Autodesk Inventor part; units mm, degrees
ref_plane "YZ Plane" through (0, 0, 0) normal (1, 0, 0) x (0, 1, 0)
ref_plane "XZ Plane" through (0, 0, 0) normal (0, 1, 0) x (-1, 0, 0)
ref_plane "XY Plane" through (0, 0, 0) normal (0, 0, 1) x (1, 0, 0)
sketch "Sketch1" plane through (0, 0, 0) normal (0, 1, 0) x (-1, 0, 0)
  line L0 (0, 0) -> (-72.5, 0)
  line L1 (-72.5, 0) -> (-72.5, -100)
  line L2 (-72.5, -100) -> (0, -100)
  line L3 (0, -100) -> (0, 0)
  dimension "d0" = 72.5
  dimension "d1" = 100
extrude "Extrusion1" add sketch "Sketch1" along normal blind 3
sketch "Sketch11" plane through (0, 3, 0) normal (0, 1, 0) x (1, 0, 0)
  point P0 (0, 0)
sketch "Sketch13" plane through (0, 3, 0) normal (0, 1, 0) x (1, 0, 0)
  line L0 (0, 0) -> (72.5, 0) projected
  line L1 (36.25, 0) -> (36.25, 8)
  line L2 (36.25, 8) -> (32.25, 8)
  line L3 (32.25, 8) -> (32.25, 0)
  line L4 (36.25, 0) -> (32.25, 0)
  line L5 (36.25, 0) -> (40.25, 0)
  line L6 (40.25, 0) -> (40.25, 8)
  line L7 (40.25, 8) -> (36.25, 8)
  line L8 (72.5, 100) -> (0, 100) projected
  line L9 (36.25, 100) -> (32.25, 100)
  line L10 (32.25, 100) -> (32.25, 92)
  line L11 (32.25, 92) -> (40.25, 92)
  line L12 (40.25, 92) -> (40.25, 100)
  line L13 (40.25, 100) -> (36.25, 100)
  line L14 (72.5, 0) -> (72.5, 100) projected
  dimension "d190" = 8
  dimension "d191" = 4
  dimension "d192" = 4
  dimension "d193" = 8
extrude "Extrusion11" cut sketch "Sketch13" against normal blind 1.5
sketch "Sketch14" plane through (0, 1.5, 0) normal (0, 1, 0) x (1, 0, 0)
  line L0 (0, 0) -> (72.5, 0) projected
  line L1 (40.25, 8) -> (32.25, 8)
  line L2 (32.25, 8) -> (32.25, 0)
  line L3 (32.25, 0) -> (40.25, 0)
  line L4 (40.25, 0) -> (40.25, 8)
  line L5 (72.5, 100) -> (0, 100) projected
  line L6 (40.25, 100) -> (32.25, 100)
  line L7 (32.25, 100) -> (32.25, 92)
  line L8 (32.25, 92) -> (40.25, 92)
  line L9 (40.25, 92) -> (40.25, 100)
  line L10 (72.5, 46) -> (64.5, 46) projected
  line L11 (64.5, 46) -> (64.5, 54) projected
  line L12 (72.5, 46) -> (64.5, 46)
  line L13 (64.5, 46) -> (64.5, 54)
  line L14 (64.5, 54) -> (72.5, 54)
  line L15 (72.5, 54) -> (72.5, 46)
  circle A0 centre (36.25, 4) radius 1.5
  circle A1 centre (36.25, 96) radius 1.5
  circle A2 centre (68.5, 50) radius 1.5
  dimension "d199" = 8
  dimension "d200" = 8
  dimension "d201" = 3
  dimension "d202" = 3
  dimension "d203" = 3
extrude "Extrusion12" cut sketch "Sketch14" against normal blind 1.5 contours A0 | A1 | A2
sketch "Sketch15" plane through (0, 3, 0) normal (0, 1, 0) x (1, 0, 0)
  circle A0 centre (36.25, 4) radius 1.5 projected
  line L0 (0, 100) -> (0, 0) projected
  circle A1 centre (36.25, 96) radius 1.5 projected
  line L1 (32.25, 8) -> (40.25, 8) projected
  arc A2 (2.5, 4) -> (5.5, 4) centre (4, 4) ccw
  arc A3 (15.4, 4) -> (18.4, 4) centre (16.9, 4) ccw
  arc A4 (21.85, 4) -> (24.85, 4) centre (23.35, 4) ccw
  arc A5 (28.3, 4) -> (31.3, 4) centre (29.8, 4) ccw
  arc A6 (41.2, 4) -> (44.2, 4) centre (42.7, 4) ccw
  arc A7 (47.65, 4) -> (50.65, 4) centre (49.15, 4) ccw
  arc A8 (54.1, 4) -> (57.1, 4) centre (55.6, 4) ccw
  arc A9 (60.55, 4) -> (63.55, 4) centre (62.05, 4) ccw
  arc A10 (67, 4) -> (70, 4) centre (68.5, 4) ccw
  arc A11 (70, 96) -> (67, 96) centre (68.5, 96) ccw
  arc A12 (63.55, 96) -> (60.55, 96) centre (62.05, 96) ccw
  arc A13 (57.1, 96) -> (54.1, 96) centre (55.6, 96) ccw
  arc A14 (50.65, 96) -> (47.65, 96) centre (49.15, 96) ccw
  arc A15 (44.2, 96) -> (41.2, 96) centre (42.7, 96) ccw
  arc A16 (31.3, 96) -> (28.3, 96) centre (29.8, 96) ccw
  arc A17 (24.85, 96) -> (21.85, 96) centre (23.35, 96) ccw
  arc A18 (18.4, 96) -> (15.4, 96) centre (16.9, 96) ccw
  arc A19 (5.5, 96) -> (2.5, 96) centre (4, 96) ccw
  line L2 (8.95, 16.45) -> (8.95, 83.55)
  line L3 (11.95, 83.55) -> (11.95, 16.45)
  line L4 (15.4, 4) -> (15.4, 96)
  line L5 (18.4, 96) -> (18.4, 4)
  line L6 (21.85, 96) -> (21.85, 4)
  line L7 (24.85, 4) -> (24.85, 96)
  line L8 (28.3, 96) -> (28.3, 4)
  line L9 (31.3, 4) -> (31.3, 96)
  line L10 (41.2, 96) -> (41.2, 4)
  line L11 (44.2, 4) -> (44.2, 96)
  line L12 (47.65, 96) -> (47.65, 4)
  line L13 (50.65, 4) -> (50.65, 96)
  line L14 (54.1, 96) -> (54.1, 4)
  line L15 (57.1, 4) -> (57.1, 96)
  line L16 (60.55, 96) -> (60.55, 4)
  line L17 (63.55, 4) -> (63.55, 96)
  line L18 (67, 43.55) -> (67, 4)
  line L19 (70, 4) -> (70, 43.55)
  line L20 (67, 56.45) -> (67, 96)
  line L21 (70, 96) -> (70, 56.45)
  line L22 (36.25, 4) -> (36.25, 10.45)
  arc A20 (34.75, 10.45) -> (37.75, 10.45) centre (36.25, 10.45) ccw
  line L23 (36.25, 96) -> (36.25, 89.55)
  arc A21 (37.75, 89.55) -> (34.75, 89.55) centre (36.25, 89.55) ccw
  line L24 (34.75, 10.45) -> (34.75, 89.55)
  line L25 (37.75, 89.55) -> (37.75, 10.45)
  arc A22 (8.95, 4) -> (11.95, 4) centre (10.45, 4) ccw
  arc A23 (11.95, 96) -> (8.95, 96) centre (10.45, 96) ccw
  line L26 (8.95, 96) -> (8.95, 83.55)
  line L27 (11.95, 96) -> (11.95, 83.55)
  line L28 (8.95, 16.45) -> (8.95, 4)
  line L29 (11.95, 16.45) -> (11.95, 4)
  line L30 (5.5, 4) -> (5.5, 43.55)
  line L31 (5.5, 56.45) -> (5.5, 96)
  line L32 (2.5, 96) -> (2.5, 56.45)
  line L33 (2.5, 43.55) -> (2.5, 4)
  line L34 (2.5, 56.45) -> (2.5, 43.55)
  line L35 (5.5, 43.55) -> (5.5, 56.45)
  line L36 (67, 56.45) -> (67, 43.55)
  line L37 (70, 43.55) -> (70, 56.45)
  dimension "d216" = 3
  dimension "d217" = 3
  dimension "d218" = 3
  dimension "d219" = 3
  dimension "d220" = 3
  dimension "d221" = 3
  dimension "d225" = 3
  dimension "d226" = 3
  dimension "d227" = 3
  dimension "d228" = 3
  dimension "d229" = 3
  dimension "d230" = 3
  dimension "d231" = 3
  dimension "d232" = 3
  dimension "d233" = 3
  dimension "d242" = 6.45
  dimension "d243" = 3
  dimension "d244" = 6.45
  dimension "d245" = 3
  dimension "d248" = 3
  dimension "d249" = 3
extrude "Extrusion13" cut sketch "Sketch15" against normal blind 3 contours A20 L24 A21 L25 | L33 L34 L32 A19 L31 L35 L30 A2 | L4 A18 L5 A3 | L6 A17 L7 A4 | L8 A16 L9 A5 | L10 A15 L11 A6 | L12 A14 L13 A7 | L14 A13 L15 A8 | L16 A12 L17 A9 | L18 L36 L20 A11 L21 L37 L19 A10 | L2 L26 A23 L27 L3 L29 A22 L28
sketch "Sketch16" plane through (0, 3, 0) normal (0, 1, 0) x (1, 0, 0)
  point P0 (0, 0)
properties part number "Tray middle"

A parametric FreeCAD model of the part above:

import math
import FreeCAD as App
import Part
import Sketcher
from FreeCAD import Vector
Q = App.Units.Quantity


def add_polygon(sketch, points):
    """Adds a closed chain of lines whose ends are joined by coincident constraints."""
    first, n = sketch.GeometryCount, len(points)
    for a, b in zip(points, points[1:] + points[:1]):
        sketch.addGeometry(Part.LineSegment(App.Vector(*a, 0), App.Vector(*b, 0)), False)
    for i in range(n):
        sketch.addConstraint(Sketcher.Constraint("Coincident", first + i, 2, first + (i + 1) % n, 1))

doc = App.newDocument("Part")
body = doc.addObject("PartDesign::Body", "Body")

# Sketch on XZ plane
sketch1 = body.newObject("Sketcher::SketchObject", "Sketch")
sketch1.AttachmentSupport = (doc.getObject("XZ_Plane"), [""])
sketch1.MapMode = "FlatFace"
add_polygon(sketch1, [(0, -100), (0, 0), (72, 0), (72, -100)])  # lines 0-3
sketch1.addConstraint([
    Sketcher.Constraint("Vertical", 0),
    Sketcher.Constraint("Horizontal", 1),
    Sketcher.Constraint("Vertical", 2),
    Sketcher.Constraint("Horizontal", 3),
    Sketcher.Constraint("Coincident", 0, 2, -1, 1),
    Sketcher.Constraint("DistanceY", 0, 1, 0, 2, Q("100 mm")),
    Sketcher.Constraint("DistanceX", 1, 1, 1, 2, Q("72.5 mm")),
])
pad1 = body.newObject("PartDesign::Pad", "Pad")
pad1.Profile = sketch1
pad1.Length = 3
pad1.Reversed = True

# Sketch on XZ plane
sketch2 = body.newObject("Sketcher::SketchObject", "Sketch001")
sketch2.AttachmentSupport = (doc.getObject("XZ_Plane"), [""])
sketch2.MapMode = "FlatFace"
sketch2.AttachmentOffset = App.Placement(Vector(0, 0, -3), App.Rotation())
add_polygon(sketch2, [(32, -8), (32, 0), (40, 0), (40, -8)])  # lines 0-3
add_polygon(sketch2, [(40, -92), (40, -100), (32, -100), (32, -92)])  # lines 4-7
sketch2.addConstraint([
    Sketcher.Constraint("Vertical", 0),
    Sketcher.Constraint("Horizontal", 1),
    Sketcher.Constraint("Vertical", 2),
    Sketcher.Constraint("Horizontal", 3),
    Sketcher.Constraint("Vertical", 4),
    Sketcher.Constraint("Horizontal", 5),
    Sketcher.Constraint("Vertical", 6),
    Sketcher.Constraint("Horizontal", 7),
    Sketcher.Constraint("PointOnObject", 0, 2, -1),
    Sketcher.Constraint("Vertical", 2, 2, 4, 2),
    Sketcher.Constraint("Vertical", 3, 2, 5, 2),
    Sketcher.Constraint("Equal", 7, 0),
    Sketcher.Constraint("Equal", 2, 4),
    Sketcher.Constraint("DistanceX", 1, 1, 1, 2, Q("8 mm")),
    Sketcher.Constraint("DistanceY", 4, 2, -1, 1, Q("100 mm")),
    Sketcher.Constraint("DistanceX", -1, 1, 0, 2, Q("32.25 mm")),
])
pocket1 = body.newObject("PartDesign::Pocket", "Pocket")
pocket1.Profile = sketch2
pocket1.Length = 1.5
pocket1.Reversed = True

# Sketch on XZ plane
sketch3 = body.newObject("Sketcher::SketchObject", "Sketch002")
sketch3.AttachmentSupport = (doc.getObject("XZ_Plane"), [""])
sketch3.MapMode = "FlatFace"
sketch3.AttachmentOffset = App.Placement(Vector(0, 0, -1.5), App.Rotation())
sketch3.addGeometry([
    Part.Circle(Vector(36.2, -4, 0), Vector(0, 0, 1), 1.5),
    Part.Circle(Vector(36.2, -96, 0), Vector(0, 0, 1), 1.5),
    Part.Circle(Vector(68.5, -50, 0), Vector(0, 0, 1), 1.5),
], False)
sketch3.addConstraint([
    Sketcher.Constraint("Equal", 0, 1),
    Sketcher.Constraint("Equal", 1, 2),
    Sketcher.Constraint("Vertical", 0, 3, 1, 3),
    Sketcher.Constraint("Diameter", 0, Q("3 mm")),
    Sketcher.Constraint("DistanceY", 0, 3, -1, 1, Q("4 mm")),
    Sketcher.Constraint("DistanceY", 1, 3, -1, 1, Q("96 mm")),
    Sketcher.Constraint("DistanceY", 2, 3, -1, 1, Q("50 mm")),
    Sketcher.Constraint("DistanceX", -1, 1, 2, 3, Q("68.5 mm")),
    Sketcher.Constraint("DistanceX", -1, 1, 0, 3, Q("36.25 mm")),
])
pocket2 = body.newObject("PartDesign::Pocket", "Pocket001")
pocket2.Profile = sketch3
pocket2.Length = 1.5
pocket2.Reversed = True

# Sketch on XZ plane
sketch4 = body.newObject("Sketcher::SketchObject", "Sketch003")
sketch4.AttachmentSupport = (doc.getObject("XZ_Plane"), [""])
sketch4.MapMode = "FlatFace"
sketch4.AttachmentOffset = App.Placement(Vector(0, 0, -3), App.Rotation())
sketch4.addGeometry([
    Part.ArcOfCircle(Part.Circle(Vector(36.2, -10.4, 0), Vector(0, 0, 1), 1.5), math.radians(0), math.radians(180)),  # 0
    Part.LineSegment(Vector(37.8, -10.4, 0), Vector(37.8, -89.5, 0)),  # 1
    Part.ArcOfCircle(Part.Circle(Vector(36.2, -89.5, 0), Vector(0, 0, 1), 1.5), math.radians(180), math.radians(360)),  # 2
    Part.LineSegment(Vector(34.8, -89.5, 0), Vector(34.8, -10.4, 0)),  # 3
    Part.LineSegment(Vector(2.5, -96, 0), Vector(2.5, -4, 0)),  # 4
    Part.ArcOfCircle(Part.Circle(Vector(4, -4, 0), Vector(0, 0, 1), 1.5), math.radians(0), math.radians(180)),  # 5
    Part.LineSegment(Vector(5.5, -4, 0), Vector(5.5, -96, 0)),  # 6
    Part.ArcOfCircle(Part.Circle(Vector(4, -96, 0), Vector(0, 0, 1), 1.5), math.radians(180), math.radians(360)),  # 7
    Part.LineSegment(Vector(15.4, -96, 0), Vector(15.4, -4, 0)),  # 8
    Part.ArcOfCircle(Part.Circle(Vector(16.9, -4, 0), Vector(0, 0, 1), 1.5), math.radians(0), math.radians(180)),  # 9
    Part.LineSegment(Vector(18.4, -4, 0), Vector(18.4, -96, 0)),  # 10
    Part.ArcOfCircle(Part.Circle(Vector(16.9, -96, 0), Vector(0, 0, 1), 1.5), math.radians(180), math.radians(360)),  # 11
    Part.LineSegment(Vector(21.9, -96, 0), Vector(21.9, -4, 0)),  # 12
    Part.ArcOfCircle(Part.Circle(Vector(23.4, -4, 0), Vector(0, 0, 1), 1.5), math.radians(0), math.radians(180)),  # 13
    Part.LineSegment(Vector(24.9, -4, 0), Vector(24.9, -96, 0)),  # 14
    Part.ArcOfCircle(Part.Circle(Vector(23.4, -96, 0), Vector(0, 0, 1), 1.5), math.radians(180), math.radians(360)),  # 15
    Part.LineSegment(Vector(28.3, -96, 0), Vector(28.3, -4, 0)),  # 16
    Part.ArcOfCircle(Part.Circle(Vector(29.8, -4, 0), Vector(0, 0, 1), 1.5), math.radians(0), math.radians(180)),  # 17
    Part.LineSegment(Vector(31.3, -4, 0), Vector(31.3, -96, 0)),  # 18
    Part.ArcOfCircle(Part.Circle(Vector(29.8, -96, 0), Vector(0, 0, 1), 1.5), math.radians(180), math.radians(360)),  # 19
    Part.LineSegment(Vector(41.2, -96, 0), Vector(41.2, -4, 0)),  # 20
    Part.ArcOfCircle(Part.Circle(Vector(42.7, -4, 0), Vector(0, 0, 1), 1.5), math.radians(0), math.radians(180)),  # 21
    Part.LineSegment(Vector(44.2, -4, 0), Vector(44.2, -96, 0)),  # 22
    Part.ArcOfCircle(Part.Circle(Vector(42.7, -96, 0), Vector(0, 0, 1), 1.5), math.radians(180), math.radians(360)),  # 23
    Part.LineSegment(Vector(47.6, -96, 0), Vector(47.6, -4, 0)),  # 24
    Part.ArcOfCircle(Part.Circle(Vector(49.1, -4, 0), Vector(0, 0, 1), 1.5), math.radians(0), math.radians(180)),  # 25
    Part.LineSegment(Vector(50.6, -4, 0), Vector(50.6, -96, 0)),  # 26
    Part.ArcOfCircle(Part.Circle(Vector(49.1, -96, 0), Vector(0, 0, 1), 1.5), math.radians(180), math.radians(360)),  # 27
    Part.LineSegment(Vector(54.1, -96, 0), Vector(54.1, -4, 0)),  # 28
    Part.ArcOfCircle(Part.Circle(Vector(55.6, -4, 0), Vector(0, 0, 1), 1.5), math.radians(0), math.radians(180)),  # 29
    Part.LineSegment(Vector(57.1, -4, 0), Vector(57.1, -96, 0)),  # 30
    Part.ArcOfCircle(Part.Circle(Vector(55.6, -96, 0), Vector(0, 0, 1), 1.5), math.radians(180), math.radians(360)),  # 31
    Part.LineSegment(Vector(60.5, -96, 0), Vector(60.5, -4, 0)),  # 32
    Part.ArcOfCircle(Part.Circle(Vector(62, -4, 0), Vector(0, 0, 1), 1.5), math.radians(0), math.radians(180)),  # 33
    Part.LineSegment(Vector(63.5, -4, 0), Vector(63.5, -96, 0)),  # 34
    Part.ArcOfCircle(Part.Circle(Vector(62, -96, 0), Vector(0, 0, 1), 1.5), math.radians(180), math.radians(360)),  # 35
    Part.LineSegment(Vector(67, -96, 0), Vector(67, -4, 0)),  # 36
    Part.ArcOfCircle(Part.Circle(Vector(68.5, -4, 0), Vector(0, 0, 1), 1.5), math.radians(0), math.radians(180)),  # 37
    Part.LineSegment(Vector(70, -4, 0), Vector(70, -96, 0)),  # 38
    Part.ArcOfCircle(Part.Circle(Vector(68.5, -96, 0), Vector(0, 0, 1), 1.5), math.radians(180), math.radians(360)),  # 39
    Part.LineSegment(Vector(8.9, -96, 0), Vector(8.9, -4, 0)),  # 40
    Part.ArcOfCircle(Part.Circle(Vector(10.4, -4, 0), Vector(0, 0, 1), 1.5), math.radians(0), math.radians(180)),  # 41
    Part.LineSegment(Vector(11.9, -4, 0), Vector(11.9, -96, 0)),  # 42
    Part.ArcOfCircle(Part.Circle(Vector(10.4, -96, 0), Vector(0, 0, 1), 1.5), math.radians(180), math.radians(360)),  # 43
], False)
sketch4.addConstraint([
    Sketcher.Constraint("Tangent", 0, 1, 1, 1),
    Sketcher.Constraint("Tangent", 1, 2, 2, 2),
    Sketcher.Constraint("Tangent", 2, 1, 3, 1),
    Sketcher.Constraint("Tangent", 3, 2, 0, 2),
    Sketcher.Constraint("Tangent", 4, 2, 5, 2),
    Sketcher.Constraint("Tangent", 5, 1, 6, 1),
    Sketcher.Constraint("Tangent", 6, 2, 7, 2),
    Sketcher.Constraint("Tangent", 7, 1, 4, 1),
    Sketcher.Constraint("Tangent", 8, 2, 9, 2),
    Sketcher.Constraint("Tangent", 9, 1, 10, 1),
    Sketcher.Constraint("Tangent", 10, 2, 11, 2),
    Sketcher.Constraint("Tangent", 11, 1, 8, 1),
    Sketcher.Constraint("Tangent", 12, 2, 13, 2),
    Sketcher.Constraint("Tangent", 13, 1, 14, 1),
    Sketcher.Constraint("Tangent", 14, 2, 15, 2),
    Sketcher.Constraint("Tangent", 15, 1, 12, 1),
    Sketcher.Constraint("Tangent", 16, 2, 17, 2),
    Sketcher.Constraint("Tangent", 17, 1, 18, 1),
    Sketcher.Constraint("Tangent", 18, 2, 19, 2),
    Sketcher.Constraint("Tangent", 19, 1, 16, 1),
    Sketcher.Constraint("Tangent", 20, 2, 21, 2),
    Sketcher.Constraint("Tangent", 21, 1, 22, 1),
    Sketcher.Constraint("Tangent", 22, 2, 23, 2),
    Sketcher.Constraint("Tangent", 23, 1, 20, 1),
    Sketcher.Constraint("Tangent", 24, 2, 25, 2),
    Sketcher.Constraint("Tangent", 25, 1, 26, 1),
    Sketcher.Constraint("Tangent", 26, 2, 27, 2),
    Sketcher.Constraint("Tangent", 27, 1, 24, 1),
    Sketcher.Constraint("Tangent", 28, 2, 29, 2),
    Sketcher.Constraint("Tangent", 29, 1, 30, 1),
    Sketcher.Constraint("Tangent", 30, 2, 31, 2),
    Sketcher.Constraint("Tangent", 31, 1, 28, 1),
    Sketcher.Constraint("Tangent", 32, 2, 33, 2),
    Sketcher.Constraint("Tangent", 33, 1, 34, 1),
    Sketcher.Constraint("Tangent", 34, 2, 35, 2),
    Sketcher.Constraint("Tangent", 35, 1, 32, 1),
    Sketcher.Constraint("Tangent", 36, 2, 37, 2),
    Sketcher.Constraint("Tangent", 37, 1, 38, 1),
    Sketcher.Constraint("Tangent", 38, 2, 39, 2),
    Sketcher.Constraint("Tangent", 39, 1, 36, 1),
    Sketcher.Constraint("Tangent", 40, 2, 41, 2),
    Sketcher.Constraint("Tangent", 41, 1, 42, 1),
    Sketcher.Constraint("Tangent", 42, 2, 43, 2),
    Sketcher.Constraint("Tangent", 43, 1, 40, 1),
    Sketcher.Constraint("Vertical", 1),
    Sketcher.Constraint("Vertical", 3),
    Sketcher.Constraint("Vertical", 4),
    Sketcher.Constraint("Vertical", 6),
    Sketcher.Constraint("Vertical", 8),
    Sketcher.Constraint("Vertical", 10),
    Sketcher.Constraint("Vertical", 12),
    Sketcher.Constraint("Vertical", 14),
    Sketcher.Constraint("Vertical", 16),
    Sketcher.Constraint("Vertical", 18),
    Sketcher.Constraint("Vertical", 20),
    Sketcher.Constraint("Vertical", 22),
    Sketcher.Constraint("Vertical", 24),
    Sketcher.Constraint("Vertical", 26),
    Sketcher.Constraint("Vertical", 28),
    Sketcher.Constraint("Vertical", 30),
    Sketcher.Constraint("Vertical", 32),
    Sketcher.Constraint("Vertical", 34),
    Sketcher.Constraint("Vertical", 36),
    Sketcher.Constraint("Vertical", 38),
    Sketcher.Constraint("Vertical", 40),
    Sketcher.Constraint("Vertical", 42),
    Sketcher.Constraint("Equal", 2, 5),
    Sketcher.Constraint("Equal", 7, 9),
    Sketcher.Constraint("Equal", 11, 13),
    Sketcher.Constraint("Equal", 15, 17),
    Sketcher.Constraint("Equal", 19, 21),
    Sketcher.Constraint("Equal", 23, 25),
    Sketcher.Constraint("Equal", 27, 29),
    Sketcher.Constraint("Equal", 31, 33),
    Sketcher.Constraint("Equal", 35, 37),
    Sketcher.Constraint("Equal", 39, 41),
    Sketcher.Constraint("Horizontal", 5, 3, 9, 3),
    Sketcher.Constraint("Horizontal", 7, 3, 11, 3),
    Sketcher.Constraint("Horizontal", 9, 3, 13, 3),
    Sketcher.Constraint("Horizontal", 11, 3, 15, 3),
    Sketcher.Constraint("Horizontal", 13, 3, 17, 3),
    Sketcher.Constraint("Horizontal", 15, 3, 19, 3),
    Sketcher.Constraint("Horizontal", 17, 3, 21, 3),
    Sketcher.Constraint("Horizontal", 19, 3, 23, 3),
    Sketcher.Constraint("Horizontal", 21, 3, 25, 3),
    Sketcher.Constraint("Horizontal", 23, 3, 27, 3),
    Sketcher.Constraint("Horizontal", 25, 3, 29, 3),
    Sketcher.Constraint("Horizontal", 27, 3, 31, 3),
    Sketcher.Constraint("Horizontal", 29, 3, 33, 3),
    Sketcher.Constraint("Horizontal", 31, 3, 35, 3),
    Sketcher.Constraint("Horizontal", 33, 3, 37, 3),
    Sketcher.Constraint("Horizontal", 35, 3, 39, 3),
    Sketcher.Constraint("Horizontal", 37, 3, 41, 3),
    Sketcher.Constraint("Horizontal", 39, 3, 43, 3),
    Sketcher.Constraint("Radius", 0, Q("1.5 mm")),
    Sketcher.Constraint("DistanceY", 4, 1, 4, 2, Q("92 mm")),
    Sketcher.Constraint("DistanceY", 1, 2, 1, 1, Q("79.1 mm")),
    Sketcher.Constraint("DistanceX", -1, 1, 5, 3, Q("4 mm")),
    Sketcher.Constraint("DistanceY", 5, 3, -1, 1, Q("4 mm")),
    Sketcher.Constraint("DistanceX", -1, 1, 36, 2, Q("67 mm")),
    Sketcher.Constraint("DistanceX", -1, 1, 9, 3, Q("16.9 mm")),
    Sketcher.Constraint("DistanceX", -1, 1, 17, 3, Q("29.8 mm")),
    Sketcher.Constraint("DistanceX", -1, 1, 21, 3, Q("42.7 mm")),
    Sketcher.Constraint("DistanceX", -1, 1, 29, 3, Q("55.6 mm")),
    Sketcher.Constraint("DistanceX", -1, 1, 0, 3, Q("36.25 mm")),
    Sketcher.Constraint("DistanceY", 0, 3, -1, 1, Q("10.45 mm")),
    Sketcher.Constraint("DistanceX", -1, 1, 13, 3, Q("23.35 mm")),
    Sketcher.Constraint("DistanceX", -1, 1, 25, 3, Q("49.15 mm")),
    Sketcher.Constraint("DistanceX", -1, 1, 33, 3, Q("62.05 mm")),
    Sketcher.Constraint("DistanceX", -1, 1, 41, 3, Q("10.45 mm")),
])
pocket3 = body.newObject("PartDesign::Pocket", "Pocket002")
pocket3.Profile = sketch4
pocket3.Length = 3
pocket3.Reversed = True

doc.recompute()
